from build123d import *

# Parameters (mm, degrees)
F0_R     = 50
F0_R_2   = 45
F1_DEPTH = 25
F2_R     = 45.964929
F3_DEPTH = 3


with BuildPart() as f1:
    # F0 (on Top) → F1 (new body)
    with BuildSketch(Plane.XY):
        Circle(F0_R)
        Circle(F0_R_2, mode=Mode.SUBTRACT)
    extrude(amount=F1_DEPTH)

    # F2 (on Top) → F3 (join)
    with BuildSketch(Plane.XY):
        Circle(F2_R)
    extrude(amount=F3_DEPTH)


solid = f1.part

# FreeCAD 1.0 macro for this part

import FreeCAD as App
import Part
import Sketcher

V = App.Vector
Q = App.Units.Quantity

doc = App.newDocument("Part")
params = doc.addObject("Spreadsheet::Sheet", "Params")
for row, (alias, value) in enumerate([
    ("sketch1_diameter", "100 mm"),
    ("sketch1_diameter2", "90 mm"),
    ("pad1_length", "25 mm"),
    ("pad2_length", "3 mm"),
], start=1):
    params.set(f"A{row}", alias)
    params.set(f"B{row}", "=" + value)
    params.setAlias(f"B{row}", alias)

body = doc.addObject("PartDesign::Body", "Body")

sketch1 = doc.addObject("Sketcher::SketchObject", "Sketch")
body.addObject(sketch1)
sketch1.AttachmentSupport = (doc.XY_Plane, [""])
sketch1.MapMode = "FlatFace"
sketch1.addGeometry([
    Part.Circle(V(0, 0, 0), V(0, 0, 1), 50),
    Part.Circle(V(0, 0, 0), V(0, 0, 1), 45),
], False)
sketch1.addConstraint([
    Sketcher.Constraint("Coincident", 0, 3, -1, 1),
    Sketcher.Constraint("Coincident", 1, 3, -1, 1),
    Sketcher.Constraint("Diameter", 0, Q("100 mm")),
    Sketcher.Constraint("Diameter", 1, Q("90 mm")),
])
sketch1.setExpression("Constraints[2]", "Params.sketch1_diameter")
sketch1.setExpression("Constraints[3]", "Params.sketch1_diameter2")
pad1 = doc.addObject("PartDesign::Pad", "Pad")
body.addObject(pad1)
pad1.Profile = sketch1
pad1.setExpression("Length", "Params.pad1_length")

sketch2 = doc.addObject("Sketcher::SketchObject", "Sketch001")
body.addObject(sketch2)
sketch2.AttachmentSupport = (doc.XY_Plane, [""])
sketch2.MapMode = "FlatFace"
sketch2.addGeometry(Part.Circle(V(0, 0, 0), V(0, 0, 1), 46), False)
sketch2.addConstraint([
    Sketcher.Constraint("Coincident", 0, 3, -1, 1),
    Sketcher.Constraint("Diameter", 0, Q("91.929858 mm")),
])
pad2 = doc.addObject("PartDesign::Pad", "Pad001")
body.addObject(pad2)
pad2.Profile = sketch2
pad2.setExpression("Length", "Params.pad2_length")

doc.recompute()
